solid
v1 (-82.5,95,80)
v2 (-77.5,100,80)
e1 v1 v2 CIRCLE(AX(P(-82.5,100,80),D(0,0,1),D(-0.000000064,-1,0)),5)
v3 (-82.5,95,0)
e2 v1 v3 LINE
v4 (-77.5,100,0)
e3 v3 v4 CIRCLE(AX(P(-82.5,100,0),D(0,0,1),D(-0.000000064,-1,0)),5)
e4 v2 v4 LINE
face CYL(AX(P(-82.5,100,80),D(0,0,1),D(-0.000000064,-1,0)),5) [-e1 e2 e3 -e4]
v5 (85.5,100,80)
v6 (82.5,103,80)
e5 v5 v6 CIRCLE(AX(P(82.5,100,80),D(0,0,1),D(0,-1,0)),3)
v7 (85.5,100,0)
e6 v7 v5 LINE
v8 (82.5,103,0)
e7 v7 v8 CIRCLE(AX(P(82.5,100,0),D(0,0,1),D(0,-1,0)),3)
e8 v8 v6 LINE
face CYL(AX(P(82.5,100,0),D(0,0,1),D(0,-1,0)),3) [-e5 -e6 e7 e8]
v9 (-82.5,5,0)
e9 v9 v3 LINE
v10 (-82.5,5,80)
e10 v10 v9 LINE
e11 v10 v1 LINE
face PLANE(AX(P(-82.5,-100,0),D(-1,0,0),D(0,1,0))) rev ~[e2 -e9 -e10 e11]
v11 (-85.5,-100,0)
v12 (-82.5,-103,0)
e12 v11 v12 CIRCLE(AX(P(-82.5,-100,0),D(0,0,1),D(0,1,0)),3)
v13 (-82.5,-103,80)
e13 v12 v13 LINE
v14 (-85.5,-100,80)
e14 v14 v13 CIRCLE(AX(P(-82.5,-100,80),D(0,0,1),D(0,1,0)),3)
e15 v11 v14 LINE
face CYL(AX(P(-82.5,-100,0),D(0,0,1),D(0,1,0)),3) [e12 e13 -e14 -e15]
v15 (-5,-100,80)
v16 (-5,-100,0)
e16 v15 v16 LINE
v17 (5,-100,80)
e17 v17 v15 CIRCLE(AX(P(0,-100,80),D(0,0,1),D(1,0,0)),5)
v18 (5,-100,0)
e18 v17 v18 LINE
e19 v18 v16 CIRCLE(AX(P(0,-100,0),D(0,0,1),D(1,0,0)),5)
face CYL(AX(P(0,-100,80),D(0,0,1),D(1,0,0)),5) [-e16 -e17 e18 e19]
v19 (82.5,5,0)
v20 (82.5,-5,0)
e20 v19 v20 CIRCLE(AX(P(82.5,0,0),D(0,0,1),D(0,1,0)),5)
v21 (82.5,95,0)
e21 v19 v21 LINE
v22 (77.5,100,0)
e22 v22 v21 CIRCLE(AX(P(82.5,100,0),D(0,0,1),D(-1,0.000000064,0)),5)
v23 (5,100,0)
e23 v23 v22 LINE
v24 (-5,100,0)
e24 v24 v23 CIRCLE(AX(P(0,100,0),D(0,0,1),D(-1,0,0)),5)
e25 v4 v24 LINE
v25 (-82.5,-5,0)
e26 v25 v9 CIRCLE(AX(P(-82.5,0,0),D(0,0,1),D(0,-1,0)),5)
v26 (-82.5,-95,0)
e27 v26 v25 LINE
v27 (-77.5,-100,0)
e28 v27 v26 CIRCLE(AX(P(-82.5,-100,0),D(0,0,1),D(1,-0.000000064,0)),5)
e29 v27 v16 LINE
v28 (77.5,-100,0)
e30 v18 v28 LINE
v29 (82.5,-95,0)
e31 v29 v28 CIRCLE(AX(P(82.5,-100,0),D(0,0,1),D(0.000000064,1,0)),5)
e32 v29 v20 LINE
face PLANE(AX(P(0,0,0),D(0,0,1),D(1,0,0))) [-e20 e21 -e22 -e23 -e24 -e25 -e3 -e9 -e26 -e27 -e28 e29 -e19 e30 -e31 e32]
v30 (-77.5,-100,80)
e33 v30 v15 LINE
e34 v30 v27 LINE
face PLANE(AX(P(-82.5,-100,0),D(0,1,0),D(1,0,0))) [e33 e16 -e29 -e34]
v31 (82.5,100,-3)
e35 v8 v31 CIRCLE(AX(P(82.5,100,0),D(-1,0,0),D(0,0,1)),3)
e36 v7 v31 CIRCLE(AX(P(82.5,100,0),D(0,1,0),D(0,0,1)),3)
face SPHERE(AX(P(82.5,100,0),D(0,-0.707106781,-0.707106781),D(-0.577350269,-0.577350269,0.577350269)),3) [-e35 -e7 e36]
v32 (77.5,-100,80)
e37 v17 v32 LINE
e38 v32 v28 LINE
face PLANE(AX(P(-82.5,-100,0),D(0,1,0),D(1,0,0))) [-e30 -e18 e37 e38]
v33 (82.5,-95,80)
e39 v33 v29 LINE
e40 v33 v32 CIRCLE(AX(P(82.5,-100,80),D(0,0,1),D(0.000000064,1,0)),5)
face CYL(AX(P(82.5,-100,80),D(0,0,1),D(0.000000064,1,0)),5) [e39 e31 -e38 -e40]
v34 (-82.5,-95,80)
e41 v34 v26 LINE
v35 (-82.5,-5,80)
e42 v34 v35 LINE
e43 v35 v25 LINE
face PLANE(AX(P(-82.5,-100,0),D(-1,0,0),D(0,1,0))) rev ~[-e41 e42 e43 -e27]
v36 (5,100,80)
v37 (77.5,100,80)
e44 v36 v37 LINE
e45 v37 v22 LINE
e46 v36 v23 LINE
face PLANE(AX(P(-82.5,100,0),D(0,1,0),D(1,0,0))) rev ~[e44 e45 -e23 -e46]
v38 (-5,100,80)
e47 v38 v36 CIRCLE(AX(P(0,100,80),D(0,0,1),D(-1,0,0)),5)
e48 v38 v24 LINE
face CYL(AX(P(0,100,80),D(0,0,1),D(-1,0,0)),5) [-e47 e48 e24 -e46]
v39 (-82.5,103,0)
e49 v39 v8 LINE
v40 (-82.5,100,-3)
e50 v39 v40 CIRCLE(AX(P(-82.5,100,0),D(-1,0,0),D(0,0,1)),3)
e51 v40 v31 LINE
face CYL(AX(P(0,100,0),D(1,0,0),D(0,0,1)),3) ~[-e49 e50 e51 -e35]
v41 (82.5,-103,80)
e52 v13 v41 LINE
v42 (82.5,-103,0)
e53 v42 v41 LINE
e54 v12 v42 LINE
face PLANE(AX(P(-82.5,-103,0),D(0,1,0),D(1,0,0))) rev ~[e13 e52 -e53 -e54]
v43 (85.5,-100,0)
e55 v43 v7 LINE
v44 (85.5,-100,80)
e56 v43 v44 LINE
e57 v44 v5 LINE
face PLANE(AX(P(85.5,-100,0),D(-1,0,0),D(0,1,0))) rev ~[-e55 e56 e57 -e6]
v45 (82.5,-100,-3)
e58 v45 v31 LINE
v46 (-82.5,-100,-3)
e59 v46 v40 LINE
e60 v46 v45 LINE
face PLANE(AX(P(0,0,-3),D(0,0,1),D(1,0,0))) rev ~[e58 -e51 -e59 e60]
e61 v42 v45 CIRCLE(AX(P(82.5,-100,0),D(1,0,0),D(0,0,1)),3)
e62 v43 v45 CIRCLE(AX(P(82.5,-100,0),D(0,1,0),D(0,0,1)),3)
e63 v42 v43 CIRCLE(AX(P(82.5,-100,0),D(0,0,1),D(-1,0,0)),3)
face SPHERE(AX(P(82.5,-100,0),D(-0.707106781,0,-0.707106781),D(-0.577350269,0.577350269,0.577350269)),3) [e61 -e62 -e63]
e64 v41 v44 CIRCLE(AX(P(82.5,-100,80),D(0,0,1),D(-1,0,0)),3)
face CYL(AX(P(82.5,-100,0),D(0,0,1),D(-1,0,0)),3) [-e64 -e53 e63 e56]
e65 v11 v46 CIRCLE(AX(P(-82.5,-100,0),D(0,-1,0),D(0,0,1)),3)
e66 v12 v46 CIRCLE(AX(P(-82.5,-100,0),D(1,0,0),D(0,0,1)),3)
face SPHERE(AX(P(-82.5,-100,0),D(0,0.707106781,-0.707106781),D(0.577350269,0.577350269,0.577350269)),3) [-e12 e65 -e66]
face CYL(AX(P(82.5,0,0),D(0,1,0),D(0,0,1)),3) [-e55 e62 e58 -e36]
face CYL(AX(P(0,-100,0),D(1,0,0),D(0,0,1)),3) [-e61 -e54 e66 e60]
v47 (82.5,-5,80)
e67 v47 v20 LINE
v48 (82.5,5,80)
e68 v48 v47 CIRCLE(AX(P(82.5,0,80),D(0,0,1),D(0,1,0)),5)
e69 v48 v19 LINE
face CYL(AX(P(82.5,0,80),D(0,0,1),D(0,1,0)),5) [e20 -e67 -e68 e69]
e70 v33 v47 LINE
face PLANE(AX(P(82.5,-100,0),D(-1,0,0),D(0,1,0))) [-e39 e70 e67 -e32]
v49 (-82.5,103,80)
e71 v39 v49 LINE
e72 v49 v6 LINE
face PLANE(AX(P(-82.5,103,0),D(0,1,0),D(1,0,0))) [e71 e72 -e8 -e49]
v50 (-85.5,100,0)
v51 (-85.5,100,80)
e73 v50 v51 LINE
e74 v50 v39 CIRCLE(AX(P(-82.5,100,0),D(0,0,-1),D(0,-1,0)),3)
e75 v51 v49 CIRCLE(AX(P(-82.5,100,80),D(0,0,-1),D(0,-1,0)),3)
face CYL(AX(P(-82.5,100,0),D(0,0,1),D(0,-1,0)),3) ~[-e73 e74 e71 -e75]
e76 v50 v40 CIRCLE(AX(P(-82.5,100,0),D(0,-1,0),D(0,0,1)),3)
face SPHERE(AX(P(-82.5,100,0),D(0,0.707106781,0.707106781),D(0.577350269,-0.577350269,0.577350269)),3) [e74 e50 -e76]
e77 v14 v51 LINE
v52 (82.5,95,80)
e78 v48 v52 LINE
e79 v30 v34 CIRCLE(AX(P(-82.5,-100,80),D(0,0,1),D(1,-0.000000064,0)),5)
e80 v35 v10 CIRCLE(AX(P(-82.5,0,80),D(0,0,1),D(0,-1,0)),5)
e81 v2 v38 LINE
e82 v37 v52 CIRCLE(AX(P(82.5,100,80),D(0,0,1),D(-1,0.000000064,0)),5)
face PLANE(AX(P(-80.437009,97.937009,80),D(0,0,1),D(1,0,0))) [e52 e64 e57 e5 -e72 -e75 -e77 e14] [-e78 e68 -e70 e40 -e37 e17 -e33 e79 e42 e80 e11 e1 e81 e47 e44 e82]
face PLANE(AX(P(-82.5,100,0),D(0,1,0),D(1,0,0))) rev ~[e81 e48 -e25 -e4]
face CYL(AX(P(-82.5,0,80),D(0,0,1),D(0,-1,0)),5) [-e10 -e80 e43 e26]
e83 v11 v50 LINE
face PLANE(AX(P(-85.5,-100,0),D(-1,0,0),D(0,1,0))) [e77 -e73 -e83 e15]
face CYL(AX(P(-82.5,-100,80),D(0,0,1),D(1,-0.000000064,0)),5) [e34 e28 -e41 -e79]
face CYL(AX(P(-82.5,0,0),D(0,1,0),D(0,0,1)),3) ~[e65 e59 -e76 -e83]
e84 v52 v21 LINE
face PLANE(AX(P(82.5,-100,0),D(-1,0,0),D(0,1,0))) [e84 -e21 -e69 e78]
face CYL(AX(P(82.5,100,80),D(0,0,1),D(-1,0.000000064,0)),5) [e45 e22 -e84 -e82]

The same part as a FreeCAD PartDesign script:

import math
import FreeCAD as App
import Part
import Sketcher

V = App.Vector
Q = App.Units.Quantity


def faces_at(feature, points):
    """Names of the faces that lie closest to the given points."""
    faces = feature.Shape.Faces
    near = lambda p: min(range(len(faces)), key=lambda i: faces[i].distToShape(Part.Vertex(*p))[0])
    return sorted({f"Face{near(p) + 1}" for p in points})

doc = App.newDocument("Part")
body = doc.addObject("PartDesign::Body", "Body")

# Sketch on XY plane
sketch1 = body.newObject("Sketcher::SketchObject", "Sketch")
sketch1.AttachmentSupport = (doc.getObject("XY_Plane"), [""])
sketch1.MapMode = "FlatFace"
sketch1.addGeometry([
    Part.LineSegment(V(-82, 100, 0), V(-82, -100, 0)),
    Part.LineSegment(V(-82, -100, 0), V(82, -100, 0)),
    Part.LineSegment(V(82, -100, 0), V(82, 100, 0)),
    Part.LineSegment(V(82, 100, 0), V(-82, 100, 0)),
], False)
sketch1.addConstraint([
    Sketcher.Constraint("Coincident", 0, 2, 1, 1),
    Sketcher.Constraint("Coincident", 1, 2, 2, 1),
    Sketcher.Constraint("Coincident", 2, 2, 3, 1),
    Sketcher.Constraint("Coincident", 3, 2, 0, 1),
    Sketcher.Constraint("Vertical", 0),
    Sketcher.Constraint("Horizontal", 1),
    Sketcher.Constraint("Vertical", 2),
    Sketcher.Constraint("Horizontal", 3),
    Sketcher.Constraint("Symmetric", 0, 2, 2, 2, -1, 1),
    Sketcher.Constraint("DistanceX", 1, 1, 1, 2, Q("165 mm")),
    Sketcher.Constraint("DistanceY", 0, 2, 0, 1, Q("200 mm")),
])
pad1 = body.newObject("PartDesign::Pad", "Pad")
pad1.Profile = sketch1
pad1.Length = 80
doc.recompute()

thickness = body.newObject("PartDesign::Thickness", "Thickness")
thickness.Base = (pad1, faces_at(pad1, [(0, 0, 80)]))
thickness.Value = 3
thickness.Reversed = False
thickness.Join = "Arc"

# Sketch on XY plane
sketch2 = body.newObject("Sketcher::SketchObject", "Sketch001")
sketch2.AttachmentSupport = (doc.getObject("XY_Plane"), [""])
sketch2.MapMode = "FlatFace"
sketch2.AttachmentOffset = App.Placement(V(0, 0, 80), App.Rotation())
sketch2.addGeometry([
    Part.ArcOfCircle(Part.Circle(V(-82.5, 100, 0), V(0, 0, 1), 5), math.radians(-90), math.radians(0)),  # 0
    Part.LineSegment(V(-77.5, 100, 0), V(-82.5, 100, 0)),  # 1
    Part.LineSegment(V(-82.5, 100, 0), V(-82.5, 95, 0)),  # 2
    Part.ArcOfCircle(Part.Circle(V(82.5, 100, 0), V(0, 0, 1), 5), math.radians(180), math.radians(270)),  # 3
    Part.LineSegment(V(82.5, 95, 0), V(82.5, 100, 0)),  # 4
    Part.LineSegment(V(82.5, 100, 0), V(77.5, 100, 0)),  # 5
    Part.ArcOfCircle(Part.Circle(V(-82.5, -100, 0), V(0, 0, 1), 5), math.radians(0), math.radians(90)),  # 6
    Part.LineSegment(V(-82.5, -95, 0), V(-82.5, -100, 0)),  # 7
    Part.LineSegment(V(-82.5, -100, 0), V(-77.5, -100, 0)),  # 8
    Part.ArcOfCircle(Part.Circle(V(82.5, -100, 0), V(0, 0, 1), 5), math.radians(90), math.radians(180)),  # 9
    Part.LineSegment(V(77.5, -100, 0), V(82.5, -100, 0)),  # 10
    Part.LineSegment(V(82.5, -100, 0), V(82.5, -95, 0)),  # 11
    Part.ArcOfCircle(Part.Circle(V(0, -100, 0), V(0, 0, 1), 5), math.radians(0), math.radians(180)),  # 12
    Part.LineSegment(V(-5, -100, 0), V(5, -100, 0)),  # 13
    Part.ArcOfCircle(Part.Circle(V(-82.5, 0, 0), V(0, 0, 1), 5), math.radians(-90), math.radians(90)),  # 14
    Part.LineSegment(V(-82.5, 5, 0), V(-82.5, -5, 0)),  # 15
    Part.ArcOfCircle(Part.Circle(V(82.5, 0, 0), V(0, 0, 1), 5), math.radians(90), math.radians(270)),  # 16
    Part.LineSegment(V(82.5, -5, 0), V(82.5, 5, 0)),  # 17
    Part.ArcOfCircle(Part.Circle(V(0, 100, 0), V(0, 0, 1), 5), math.radians(180), math.radians(360)),  # 18
    Part.LineSegment(V(5, 100, 0), V(-5, 100, 0)),  # 19
], False)
sketch2.addConstraint([
    Sketcher.Constraint("Coincident", 0, 2, 1, 1),
    Sketcher.Constraint("Coincident", 1, 2, 2, 1),
    Sketcher.Constraint("Coincident", 2, 2, 0, 1),
    Sketcher.Constraint("Coincident", 3, 2, 4, 1),
    Sketcher.Constraint("Coincident", 4, 2, 5, 1),
    Sketcher.Constraint("Coincident", 5, 2, 3, 1),
    Sketcher.Constraint("Coincident", 6, 2, 7, 1),
    Sketcher.Constraint("Coincident", 7, 2, 8, 1),
    Sketcher.Constraint("Coincident", 8, 2, 6, 1),
    Sketcher.Constraint("Coincident", 9, 2, 10, 1),
    Sketcher.Constraint("Coincident", 10, 2, 11, 1),
    Sketcher.Constraint("Coincident", 11, 2, 9, 1),
    Sketcher.Constraint("Coincident", 12, 1, 13, 2),
    Sketcher.Constraint("Coincident", 13, 1, 12, 2),
    Sketcher.Constraint("Coincident", 14, 1, 15, 2),
    Sketcher.Constraint("Coincident", 15, 1, 14, 2),
    Sketcher.Constraint("Coincident", 16, 1, 17, 2),
    Sketcher.Constraint("Coincident", 17, 1, 16, 2),
    Sketcher.Constraint("Coincident", 18, 1, 19, 2),
    Sketcher.Constraint("Coincident", 19, 1, 18, 2),
    Sketcher.Constraint("Horizontal", 1),
    Sketcher.Constraint("Vertical", 2),
    Sketcher.Constraint("Vertical", 4),
    Sketcher.Constraint("Horizontal", 5),
    Sketcher.Constraint("Vertical", 7),
    Sketcher.Constraint("Horizontal", 8),
    Sketcher.Constraint("Horizontal", 10),
    Sketcher.Constraint("Vertical", 11),
    Sketcher.Constraint("Horizontal", 13),
    Sketcher.Constraint("Vertical", 15),
    Sketcher.Constraint("Vertical", 17),
    Sketcher.Constraint("Horizontal", 19),
    Sketcher.Constraint("Coincident", 1, 2, 0, 3),
    Sketcher.Constraint("Coincident", 4, 2, 3, 3),
    Sketcher.Constraint("Coincident", 7, 2, 6, 3),
    Sketcher.Constraint("Coincident", 10, 2, 9, 3),
    Sketcher.Constraint("Equal", 0, 3),
    Sketcher.Constraint("Equal", 3, 6),
    Sketcher.Constraint("Equal", 6, 9),
    Sketcher.Constraint("Equal", 9, 12),
    Sketcher.Constraint("Equal", 12, 14),
    Sketcher.Constraint("Equal", 14, 16),
    Sketcher.Constraint("Equal", 16, 18),
    Sketcher.Constraint("Symmetric", 3, 3, 6, 3, -1, 1),
    Sketcher.Constraint("Symmetric", 0, 3, 9, 3, -1, 1),
    Sketcher.Constraint("Symmetric", 14, 3, 16, 3, -1, 1),
    Sketcher.Constraint("Symmetric", 12, 3, 18, 3, -1, 1),
    Sketcher.Constraint("Symmetric", 0, 3, 3, 3, -2),
    Sketcher.Constraint("Symmetric", 15, 1, 16, 1, -2),
    Sketcher.Constraint("Symmetric", 13, 1, 18, 1, -1),
    Sketcher.Constraint("Horizontal", 9, 3, 12, 3),
    Sketcher.Constraint("Horizontal", 10, 2, 12, 1),
    Sketcher.Constraint("Vertical", 6, 3, 14, 3),
    Sketcher.Constraint("Vertical", 7, 2, 14, 1),
    Sketcher.Constraint("Radius", 0, Q("5 mm")),
    Sketcher.Constraint("DistanceY", -1, 1, 0, 3, Q("100 mm")),
    Sketcher.Constraint("DistanceX", 0, 3, 3, 3, Q("164.999999 mm")),
])
pad2 = body.newObject("PartDesign::Pad", "Pad001")
pad2.Profile = sketch2
pad2.Length = 80
pad2.Reversed = True

doc.recompute()
